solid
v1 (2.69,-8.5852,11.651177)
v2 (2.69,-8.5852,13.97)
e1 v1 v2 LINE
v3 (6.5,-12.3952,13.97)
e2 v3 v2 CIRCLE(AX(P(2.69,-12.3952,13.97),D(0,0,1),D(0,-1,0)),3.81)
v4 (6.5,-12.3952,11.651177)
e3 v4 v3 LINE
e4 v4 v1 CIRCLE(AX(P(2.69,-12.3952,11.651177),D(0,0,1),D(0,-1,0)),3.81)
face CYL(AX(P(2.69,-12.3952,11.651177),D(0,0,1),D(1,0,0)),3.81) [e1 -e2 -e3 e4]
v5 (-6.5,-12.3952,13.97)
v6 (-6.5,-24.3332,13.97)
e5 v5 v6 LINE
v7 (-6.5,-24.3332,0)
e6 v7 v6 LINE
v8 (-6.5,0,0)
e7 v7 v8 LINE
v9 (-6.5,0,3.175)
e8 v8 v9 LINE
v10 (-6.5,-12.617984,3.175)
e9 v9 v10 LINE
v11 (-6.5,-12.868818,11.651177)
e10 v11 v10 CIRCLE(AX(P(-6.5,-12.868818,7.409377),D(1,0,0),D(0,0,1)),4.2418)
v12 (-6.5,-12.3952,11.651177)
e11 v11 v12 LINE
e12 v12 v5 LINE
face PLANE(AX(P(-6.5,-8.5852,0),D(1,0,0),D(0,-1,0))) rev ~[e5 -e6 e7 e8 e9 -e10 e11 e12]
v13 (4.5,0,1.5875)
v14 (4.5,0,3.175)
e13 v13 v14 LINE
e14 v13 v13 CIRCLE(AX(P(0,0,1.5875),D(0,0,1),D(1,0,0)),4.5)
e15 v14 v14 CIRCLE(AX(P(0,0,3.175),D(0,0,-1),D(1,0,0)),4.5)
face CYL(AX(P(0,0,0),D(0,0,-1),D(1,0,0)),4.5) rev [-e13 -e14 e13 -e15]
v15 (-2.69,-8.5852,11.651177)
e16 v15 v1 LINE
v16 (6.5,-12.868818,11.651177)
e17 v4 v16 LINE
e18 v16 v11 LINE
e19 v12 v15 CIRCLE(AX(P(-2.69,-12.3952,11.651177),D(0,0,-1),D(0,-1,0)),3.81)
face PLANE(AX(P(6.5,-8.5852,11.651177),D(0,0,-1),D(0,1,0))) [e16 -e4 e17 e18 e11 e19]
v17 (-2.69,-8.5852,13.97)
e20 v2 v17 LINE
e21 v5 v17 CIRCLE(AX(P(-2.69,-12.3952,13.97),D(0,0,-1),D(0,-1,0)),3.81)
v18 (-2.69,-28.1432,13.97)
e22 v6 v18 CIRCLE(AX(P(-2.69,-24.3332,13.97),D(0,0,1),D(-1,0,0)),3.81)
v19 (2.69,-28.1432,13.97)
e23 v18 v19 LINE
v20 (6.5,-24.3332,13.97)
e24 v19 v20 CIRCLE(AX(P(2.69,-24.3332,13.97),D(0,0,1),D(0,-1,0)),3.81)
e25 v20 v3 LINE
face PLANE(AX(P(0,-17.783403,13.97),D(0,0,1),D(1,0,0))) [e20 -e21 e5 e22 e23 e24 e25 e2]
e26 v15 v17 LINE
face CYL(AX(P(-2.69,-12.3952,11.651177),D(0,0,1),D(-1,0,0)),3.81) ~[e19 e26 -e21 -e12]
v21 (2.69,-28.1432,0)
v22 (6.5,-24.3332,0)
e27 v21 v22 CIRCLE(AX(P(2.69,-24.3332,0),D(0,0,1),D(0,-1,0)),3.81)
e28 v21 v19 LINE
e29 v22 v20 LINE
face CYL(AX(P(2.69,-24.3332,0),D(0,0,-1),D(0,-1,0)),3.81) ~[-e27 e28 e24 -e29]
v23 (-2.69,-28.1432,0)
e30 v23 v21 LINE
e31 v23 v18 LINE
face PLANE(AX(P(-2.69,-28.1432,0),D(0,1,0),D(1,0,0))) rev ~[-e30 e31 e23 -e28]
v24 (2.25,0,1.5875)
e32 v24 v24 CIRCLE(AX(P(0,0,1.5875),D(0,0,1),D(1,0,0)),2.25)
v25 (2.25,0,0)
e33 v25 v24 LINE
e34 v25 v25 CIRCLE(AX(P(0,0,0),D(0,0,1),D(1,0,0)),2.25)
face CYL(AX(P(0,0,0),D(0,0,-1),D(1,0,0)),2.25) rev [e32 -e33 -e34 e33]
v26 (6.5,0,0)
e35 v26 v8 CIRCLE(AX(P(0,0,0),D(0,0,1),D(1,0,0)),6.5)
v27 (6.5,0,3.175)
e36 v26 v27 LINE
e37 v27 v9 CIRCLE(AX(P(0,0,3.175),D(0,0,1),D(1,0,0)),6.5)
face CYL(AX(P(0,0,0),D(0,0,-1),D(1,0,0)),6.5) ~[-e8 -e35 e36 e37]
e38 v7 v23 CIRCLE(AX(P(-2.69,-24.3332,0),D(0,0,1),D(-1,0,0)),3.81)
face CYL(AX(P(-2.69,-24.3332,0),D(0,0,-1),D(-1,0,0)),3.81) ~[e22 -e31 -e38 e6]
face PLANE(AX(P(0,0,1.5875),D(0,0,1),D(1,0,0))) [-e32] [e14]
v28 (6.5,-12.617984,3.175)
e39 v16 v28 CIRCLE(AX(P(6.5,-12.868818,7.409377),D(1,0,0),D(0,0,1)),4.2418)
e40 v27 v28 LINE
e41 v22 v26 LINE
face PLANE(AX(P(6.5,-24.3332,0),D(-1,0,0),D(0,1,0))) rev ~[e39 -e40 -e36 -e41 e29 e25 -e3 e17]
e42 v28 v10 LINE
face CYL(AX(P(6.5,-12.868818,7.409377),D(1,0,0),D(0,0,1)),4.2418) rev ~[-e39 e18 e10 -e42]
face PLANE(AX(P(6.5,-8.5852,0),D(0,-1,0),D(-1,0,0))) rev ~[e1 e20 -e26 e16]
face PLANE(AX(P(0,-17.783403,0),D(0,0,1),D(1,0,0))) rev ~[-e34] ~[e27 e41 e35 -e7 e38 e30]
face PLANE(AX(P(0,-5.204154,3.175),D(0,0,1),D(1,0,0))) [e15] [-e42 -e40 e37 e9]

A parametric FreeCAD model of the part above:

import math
import FreeCAD as App
import Part
import Sketcher
from FreeCAD import Vector
Q = App.Units.Quantity


def edges_at(feature, points):
    """Names of the edges that pass closest to the given points."""
    edges = feature.Shape.Edges
    near = lambda p: min(range(len(edges)), key=lambda i: edges[i].distToShape(Part.Vertex(*p))[0])
    return sorted({f"Edge{near(p) + 1}" for p in points})

doc = App.newDocument("Part")
body = doc.addObject("PartDesign::Body", "Body")

# Sketch on XY plane
sketch1 = body.newObject("Sketcher::SketchObject", "Sketch")
sketch1.AttachmentSupport = (doc.getObject("XY_Plane"), [""])
sketch1.MapMode = "FlatFace"
sketch1.addGeometry([
    Part.LineSegment(Vector(6.5, -8.6, 0), Vector(6.5, 0, 0)),  # 0
    Part.ArcOfCircle(Part.Circle(Vector(0, 0, 0), Vector(0, 0, 1), 6.5), math.radians(0), math.radians(180)),  # 1
    Part.LineSegment(Vector(-6.5, 0, 0), Vector(-6.5, -8.6, 0)),  # 2
    Part.LineSegment(Vector(-6.5, -8.6, 0), Vector(6.5, -8.6, 0)),  # 3
    Part.Circle(Vector(0, 0, 0), Vector(0, 0, 1), 4.5),  # 4
], False)
sketch1.addConstraint([
    Sketcher.Constraint("Tangent", 0, 2, 1, 1),
    Sketcher.Constraint("Tangent", 1, 2, 2, 1),
    Sketcher.Constraint("Coincident", 2, 2, 3, 1),
    Sketcher.Constraint("Coincident", 3, 2, 0, 1),
    Sketcher.Constraint("Vertical", 0),
    Sketcher.Constraint("Vertical", 2),
    Sketcher.Constraint("Horizontal", 3),
    Sketcher.Constraint("Coincident", 1, 3, -1, 1),
    Sketcher.Constraint("Coincident", 4, 3, -1, 1),
    Sketcher.Constraint("Diameter", 4, 9.0),
    Sketcher.Constraint("DistanceY", 0, 1, 0, 2, Q("0.338 in")),
    Sketcher.Constraint("Radius", 1, 6.5),
])
pad1 = body.newObject("PartDesign::Pad", "Pad")
pad1.Profile = sketch1
pad1.Length = Q("0.125 in")

# Sketch on XY plane
sketch2 = body.newObject("Sketcher::SketchObject", "Sketch001")
sketch2.AttachmentSupport = (doc.getObject("XY_Plane"), [""])
sketch2.MapMode = "FlatFace"
sketch2.addGeometry([
    Part.Circle(Vector(0, 0, 0), Vector(0, 0, 1), 4.5),
    Part.Circle(Vector(0, 0, 0), Vector(0, 0, 1), 2.2),
], False)
sketch2.addConstraint([
    Sketcher.Constraint("Coincident", 0, 3, -1, 1),
    Sketcher.Constraint("Coincident", 1, 3, -1, 1),
    Sketcher.Constraint("Diameter", 0, 9.0),
    Sketcher.Constraint("Diameter", 1, 4.5),
])
pad2 = body.newObject("PartDesign::Pad", "Pad001")
pad2.Profile = sketch2
pad2.Length = Q("0.0625 in")

# Sketch on XY plane
sketch3 = body.newObject("Sketcher::SketchObject", "Sketch002")
sketch3.AttachmentSupport = (doc.getObject("XY_Plane"), [""])
sketch3.MapMode = "FlatFace"
sketch3.addGeometry([
    Part.LineSegment(Vector(6.5, -24.3, 0), Vector(6.5, -8.6, 0)),  # 0
    Part.LineSegment(Vector(6.5, -8.6, 0), Vector(-6.5, -8.6, 0)),  # 1
    Part.LineSegment(Vector(-6.5, -8.6, 0), Vector(-6.5, -24.3, 0)),  # 2
    Part.ArcOfCircle(Part.Circle(Vector(-2.7, -24.3, 0), Vector(0, 0, 1), 3.8), math.radians(180), math.radians(270)),  # 3
    Part.LineSegment(Vector(-2.7, -28.1, 0), Vector(2.7, -28.1, 0)),  # 4
    Part.ArcOfCircle(Part.Circle(Vector(2.7, -24.3, 0), Vector(0, 0, 1), 3.8), math.radians(-90), math.radians(0)),  # 5
], False)
sketch3.addConstraint([
    Sketcher.Constraint("Coincident", 0, 2, 1, 1),
    Sketcher.Constraint("Coincident", 1, 2, 2, 1),
    Sketcher.Constraint("Tangent", 2, 2, 3, 1),
    Sketcher.Constraint("Tangent", 3, 2, 4, 1),
    Sketcher.Constraint("Tangent", 4, 2, 5, 1),
    Sketcher.Constraint("Tangent", 5, 2, 0, 1),
    Sketcher.Constraint("Vertical", 0),
    Sketcher.Constraint("Horizontal", 1),
    Sketcher.Constraint("Vertical", 2),
    Sketcher.Constraint("Horizontal", 4),
    Sketcher.Constraint("Equal", 3, 5),
    Sketcher.Constraint("Radius", 3, Q("0.15 in")),
    Sketcher.Constraint("DistanceY", 0, 1, 0, 2, Q("0.62 in")),
    Sketcher.Constraint("DistanceY", 3, 3, -1, 1, Q("0.958 in")),
    Sketcher.Constraint("DistanceX", 1, 2, 1, 1, 13.0),
    Sketcher.Constraint("DistanceX", 3, 3, -1, 1, 2.69),
])
pad3 = body.newObject("PartDesign::Pad", "Pad002")
pad3.Profile = sketch3
pad3.Length = Q("0.55 in")

# Sketch on YZ plane
sketch4 = body.newObject("Sketcher::SketchObject", "Sketch003")
sketch4.AttachmentSupport = (doc.getObject("YZ_Plane"), [""])
sketch4.MapMode = "FlatFace"
sketch4.AttachmentOffset = App.Placement(Vector(0, 0, 6.5), App.Rotation())
sketch4.addGeometry([
    Part.ArcOfCircle(Part.Circle(Vector(-12.9, 7.4, 0), Vector(0, 0, 1), 4.2), math.radians(90), math.radians(273)),  # 0
    Part.LineSegment(Vector(-12.6, 3.2, 0), Vector(-8.6, 3.2, 0)),  # 1
    Part.LineSegment(Vector(-8.6, 3.2, 0), Vector(0, 3.2, 0)),  # 2
    Part.LineSegment(Vector(0, 3.2, 0), Vector(0, 11.7, 0)),  # 3
    Part.LineSegment(Vector(0, 11.7, 0), Vector(-8.6, 11.7, 0)),  # 4
    Part.LineSegment(Vector(-8.6, 11.7, 0), Vector(-12.9, 11.7, 0)),  # 5
], False)
sketch4.addConstraint([
    Sketcher.Constraint("Coincident", 0, 2, 1, 1),
    Sketcher.Constraint("Coincident", 1, 2, 2, 1),
    Sketcher.Constraint("Coincident", 2, 2, 3, 1),
    Sketcher.Constraint("Coincident", 3, 2, 4, 1),
    Sketcher.Constraint("Coincident", 4, 2, 5, 1),
    Sketcher.Constraint("Tangent", 5, 2, 0, 1),
    Sketcher.Constraint("Horizontal", 1),
    Sketcher.Constraint("Horizontal", 2),
    Sketcher.Constraint("Vertical", 3),
    Sketcher.Constraint("Horizontal", 4),
    Sketcher.Constraint("Horizontal", 5),
    Sketcher.Constraint("PointOnObject", 2, 2, -2),
    Sketcher.Constraint("Vertical", 1, 2, 4, 2),
    Sketcher.Constraint("Radius", 0, Q("0.167 in")),
    Sketcher.Constraint("DistanceX", 2, 1, 2, 2, Q("0.338 in")),
    Sketcher.Constraint("DistanceY", -1, 1, 0, 2, Q("0.125 in")),
    Sketcher.Constraint("DistanceX", 5, 2, 5, 1, 4.283618),
    Sketcher.Constraint("DistanceX", 1, 1, 1, 2, 4.032784),
])
pocket1 = body.newObject("PartDesign::Pocket", "Pocket")
pocket1.Profile = sketch4
pocket1.Length = Q("1 in")
doc.recompute()

fillet = body.newObject("PartDesign::Fillet", "Fillet")
fillet.Base = (pocket1, edges_at(pocket1, [(6.5, -8.585, 12.811), (-6.5, -8.585, 12.811)]))
fillet.Radius = Q("0.15 in")

doc.recompute()
